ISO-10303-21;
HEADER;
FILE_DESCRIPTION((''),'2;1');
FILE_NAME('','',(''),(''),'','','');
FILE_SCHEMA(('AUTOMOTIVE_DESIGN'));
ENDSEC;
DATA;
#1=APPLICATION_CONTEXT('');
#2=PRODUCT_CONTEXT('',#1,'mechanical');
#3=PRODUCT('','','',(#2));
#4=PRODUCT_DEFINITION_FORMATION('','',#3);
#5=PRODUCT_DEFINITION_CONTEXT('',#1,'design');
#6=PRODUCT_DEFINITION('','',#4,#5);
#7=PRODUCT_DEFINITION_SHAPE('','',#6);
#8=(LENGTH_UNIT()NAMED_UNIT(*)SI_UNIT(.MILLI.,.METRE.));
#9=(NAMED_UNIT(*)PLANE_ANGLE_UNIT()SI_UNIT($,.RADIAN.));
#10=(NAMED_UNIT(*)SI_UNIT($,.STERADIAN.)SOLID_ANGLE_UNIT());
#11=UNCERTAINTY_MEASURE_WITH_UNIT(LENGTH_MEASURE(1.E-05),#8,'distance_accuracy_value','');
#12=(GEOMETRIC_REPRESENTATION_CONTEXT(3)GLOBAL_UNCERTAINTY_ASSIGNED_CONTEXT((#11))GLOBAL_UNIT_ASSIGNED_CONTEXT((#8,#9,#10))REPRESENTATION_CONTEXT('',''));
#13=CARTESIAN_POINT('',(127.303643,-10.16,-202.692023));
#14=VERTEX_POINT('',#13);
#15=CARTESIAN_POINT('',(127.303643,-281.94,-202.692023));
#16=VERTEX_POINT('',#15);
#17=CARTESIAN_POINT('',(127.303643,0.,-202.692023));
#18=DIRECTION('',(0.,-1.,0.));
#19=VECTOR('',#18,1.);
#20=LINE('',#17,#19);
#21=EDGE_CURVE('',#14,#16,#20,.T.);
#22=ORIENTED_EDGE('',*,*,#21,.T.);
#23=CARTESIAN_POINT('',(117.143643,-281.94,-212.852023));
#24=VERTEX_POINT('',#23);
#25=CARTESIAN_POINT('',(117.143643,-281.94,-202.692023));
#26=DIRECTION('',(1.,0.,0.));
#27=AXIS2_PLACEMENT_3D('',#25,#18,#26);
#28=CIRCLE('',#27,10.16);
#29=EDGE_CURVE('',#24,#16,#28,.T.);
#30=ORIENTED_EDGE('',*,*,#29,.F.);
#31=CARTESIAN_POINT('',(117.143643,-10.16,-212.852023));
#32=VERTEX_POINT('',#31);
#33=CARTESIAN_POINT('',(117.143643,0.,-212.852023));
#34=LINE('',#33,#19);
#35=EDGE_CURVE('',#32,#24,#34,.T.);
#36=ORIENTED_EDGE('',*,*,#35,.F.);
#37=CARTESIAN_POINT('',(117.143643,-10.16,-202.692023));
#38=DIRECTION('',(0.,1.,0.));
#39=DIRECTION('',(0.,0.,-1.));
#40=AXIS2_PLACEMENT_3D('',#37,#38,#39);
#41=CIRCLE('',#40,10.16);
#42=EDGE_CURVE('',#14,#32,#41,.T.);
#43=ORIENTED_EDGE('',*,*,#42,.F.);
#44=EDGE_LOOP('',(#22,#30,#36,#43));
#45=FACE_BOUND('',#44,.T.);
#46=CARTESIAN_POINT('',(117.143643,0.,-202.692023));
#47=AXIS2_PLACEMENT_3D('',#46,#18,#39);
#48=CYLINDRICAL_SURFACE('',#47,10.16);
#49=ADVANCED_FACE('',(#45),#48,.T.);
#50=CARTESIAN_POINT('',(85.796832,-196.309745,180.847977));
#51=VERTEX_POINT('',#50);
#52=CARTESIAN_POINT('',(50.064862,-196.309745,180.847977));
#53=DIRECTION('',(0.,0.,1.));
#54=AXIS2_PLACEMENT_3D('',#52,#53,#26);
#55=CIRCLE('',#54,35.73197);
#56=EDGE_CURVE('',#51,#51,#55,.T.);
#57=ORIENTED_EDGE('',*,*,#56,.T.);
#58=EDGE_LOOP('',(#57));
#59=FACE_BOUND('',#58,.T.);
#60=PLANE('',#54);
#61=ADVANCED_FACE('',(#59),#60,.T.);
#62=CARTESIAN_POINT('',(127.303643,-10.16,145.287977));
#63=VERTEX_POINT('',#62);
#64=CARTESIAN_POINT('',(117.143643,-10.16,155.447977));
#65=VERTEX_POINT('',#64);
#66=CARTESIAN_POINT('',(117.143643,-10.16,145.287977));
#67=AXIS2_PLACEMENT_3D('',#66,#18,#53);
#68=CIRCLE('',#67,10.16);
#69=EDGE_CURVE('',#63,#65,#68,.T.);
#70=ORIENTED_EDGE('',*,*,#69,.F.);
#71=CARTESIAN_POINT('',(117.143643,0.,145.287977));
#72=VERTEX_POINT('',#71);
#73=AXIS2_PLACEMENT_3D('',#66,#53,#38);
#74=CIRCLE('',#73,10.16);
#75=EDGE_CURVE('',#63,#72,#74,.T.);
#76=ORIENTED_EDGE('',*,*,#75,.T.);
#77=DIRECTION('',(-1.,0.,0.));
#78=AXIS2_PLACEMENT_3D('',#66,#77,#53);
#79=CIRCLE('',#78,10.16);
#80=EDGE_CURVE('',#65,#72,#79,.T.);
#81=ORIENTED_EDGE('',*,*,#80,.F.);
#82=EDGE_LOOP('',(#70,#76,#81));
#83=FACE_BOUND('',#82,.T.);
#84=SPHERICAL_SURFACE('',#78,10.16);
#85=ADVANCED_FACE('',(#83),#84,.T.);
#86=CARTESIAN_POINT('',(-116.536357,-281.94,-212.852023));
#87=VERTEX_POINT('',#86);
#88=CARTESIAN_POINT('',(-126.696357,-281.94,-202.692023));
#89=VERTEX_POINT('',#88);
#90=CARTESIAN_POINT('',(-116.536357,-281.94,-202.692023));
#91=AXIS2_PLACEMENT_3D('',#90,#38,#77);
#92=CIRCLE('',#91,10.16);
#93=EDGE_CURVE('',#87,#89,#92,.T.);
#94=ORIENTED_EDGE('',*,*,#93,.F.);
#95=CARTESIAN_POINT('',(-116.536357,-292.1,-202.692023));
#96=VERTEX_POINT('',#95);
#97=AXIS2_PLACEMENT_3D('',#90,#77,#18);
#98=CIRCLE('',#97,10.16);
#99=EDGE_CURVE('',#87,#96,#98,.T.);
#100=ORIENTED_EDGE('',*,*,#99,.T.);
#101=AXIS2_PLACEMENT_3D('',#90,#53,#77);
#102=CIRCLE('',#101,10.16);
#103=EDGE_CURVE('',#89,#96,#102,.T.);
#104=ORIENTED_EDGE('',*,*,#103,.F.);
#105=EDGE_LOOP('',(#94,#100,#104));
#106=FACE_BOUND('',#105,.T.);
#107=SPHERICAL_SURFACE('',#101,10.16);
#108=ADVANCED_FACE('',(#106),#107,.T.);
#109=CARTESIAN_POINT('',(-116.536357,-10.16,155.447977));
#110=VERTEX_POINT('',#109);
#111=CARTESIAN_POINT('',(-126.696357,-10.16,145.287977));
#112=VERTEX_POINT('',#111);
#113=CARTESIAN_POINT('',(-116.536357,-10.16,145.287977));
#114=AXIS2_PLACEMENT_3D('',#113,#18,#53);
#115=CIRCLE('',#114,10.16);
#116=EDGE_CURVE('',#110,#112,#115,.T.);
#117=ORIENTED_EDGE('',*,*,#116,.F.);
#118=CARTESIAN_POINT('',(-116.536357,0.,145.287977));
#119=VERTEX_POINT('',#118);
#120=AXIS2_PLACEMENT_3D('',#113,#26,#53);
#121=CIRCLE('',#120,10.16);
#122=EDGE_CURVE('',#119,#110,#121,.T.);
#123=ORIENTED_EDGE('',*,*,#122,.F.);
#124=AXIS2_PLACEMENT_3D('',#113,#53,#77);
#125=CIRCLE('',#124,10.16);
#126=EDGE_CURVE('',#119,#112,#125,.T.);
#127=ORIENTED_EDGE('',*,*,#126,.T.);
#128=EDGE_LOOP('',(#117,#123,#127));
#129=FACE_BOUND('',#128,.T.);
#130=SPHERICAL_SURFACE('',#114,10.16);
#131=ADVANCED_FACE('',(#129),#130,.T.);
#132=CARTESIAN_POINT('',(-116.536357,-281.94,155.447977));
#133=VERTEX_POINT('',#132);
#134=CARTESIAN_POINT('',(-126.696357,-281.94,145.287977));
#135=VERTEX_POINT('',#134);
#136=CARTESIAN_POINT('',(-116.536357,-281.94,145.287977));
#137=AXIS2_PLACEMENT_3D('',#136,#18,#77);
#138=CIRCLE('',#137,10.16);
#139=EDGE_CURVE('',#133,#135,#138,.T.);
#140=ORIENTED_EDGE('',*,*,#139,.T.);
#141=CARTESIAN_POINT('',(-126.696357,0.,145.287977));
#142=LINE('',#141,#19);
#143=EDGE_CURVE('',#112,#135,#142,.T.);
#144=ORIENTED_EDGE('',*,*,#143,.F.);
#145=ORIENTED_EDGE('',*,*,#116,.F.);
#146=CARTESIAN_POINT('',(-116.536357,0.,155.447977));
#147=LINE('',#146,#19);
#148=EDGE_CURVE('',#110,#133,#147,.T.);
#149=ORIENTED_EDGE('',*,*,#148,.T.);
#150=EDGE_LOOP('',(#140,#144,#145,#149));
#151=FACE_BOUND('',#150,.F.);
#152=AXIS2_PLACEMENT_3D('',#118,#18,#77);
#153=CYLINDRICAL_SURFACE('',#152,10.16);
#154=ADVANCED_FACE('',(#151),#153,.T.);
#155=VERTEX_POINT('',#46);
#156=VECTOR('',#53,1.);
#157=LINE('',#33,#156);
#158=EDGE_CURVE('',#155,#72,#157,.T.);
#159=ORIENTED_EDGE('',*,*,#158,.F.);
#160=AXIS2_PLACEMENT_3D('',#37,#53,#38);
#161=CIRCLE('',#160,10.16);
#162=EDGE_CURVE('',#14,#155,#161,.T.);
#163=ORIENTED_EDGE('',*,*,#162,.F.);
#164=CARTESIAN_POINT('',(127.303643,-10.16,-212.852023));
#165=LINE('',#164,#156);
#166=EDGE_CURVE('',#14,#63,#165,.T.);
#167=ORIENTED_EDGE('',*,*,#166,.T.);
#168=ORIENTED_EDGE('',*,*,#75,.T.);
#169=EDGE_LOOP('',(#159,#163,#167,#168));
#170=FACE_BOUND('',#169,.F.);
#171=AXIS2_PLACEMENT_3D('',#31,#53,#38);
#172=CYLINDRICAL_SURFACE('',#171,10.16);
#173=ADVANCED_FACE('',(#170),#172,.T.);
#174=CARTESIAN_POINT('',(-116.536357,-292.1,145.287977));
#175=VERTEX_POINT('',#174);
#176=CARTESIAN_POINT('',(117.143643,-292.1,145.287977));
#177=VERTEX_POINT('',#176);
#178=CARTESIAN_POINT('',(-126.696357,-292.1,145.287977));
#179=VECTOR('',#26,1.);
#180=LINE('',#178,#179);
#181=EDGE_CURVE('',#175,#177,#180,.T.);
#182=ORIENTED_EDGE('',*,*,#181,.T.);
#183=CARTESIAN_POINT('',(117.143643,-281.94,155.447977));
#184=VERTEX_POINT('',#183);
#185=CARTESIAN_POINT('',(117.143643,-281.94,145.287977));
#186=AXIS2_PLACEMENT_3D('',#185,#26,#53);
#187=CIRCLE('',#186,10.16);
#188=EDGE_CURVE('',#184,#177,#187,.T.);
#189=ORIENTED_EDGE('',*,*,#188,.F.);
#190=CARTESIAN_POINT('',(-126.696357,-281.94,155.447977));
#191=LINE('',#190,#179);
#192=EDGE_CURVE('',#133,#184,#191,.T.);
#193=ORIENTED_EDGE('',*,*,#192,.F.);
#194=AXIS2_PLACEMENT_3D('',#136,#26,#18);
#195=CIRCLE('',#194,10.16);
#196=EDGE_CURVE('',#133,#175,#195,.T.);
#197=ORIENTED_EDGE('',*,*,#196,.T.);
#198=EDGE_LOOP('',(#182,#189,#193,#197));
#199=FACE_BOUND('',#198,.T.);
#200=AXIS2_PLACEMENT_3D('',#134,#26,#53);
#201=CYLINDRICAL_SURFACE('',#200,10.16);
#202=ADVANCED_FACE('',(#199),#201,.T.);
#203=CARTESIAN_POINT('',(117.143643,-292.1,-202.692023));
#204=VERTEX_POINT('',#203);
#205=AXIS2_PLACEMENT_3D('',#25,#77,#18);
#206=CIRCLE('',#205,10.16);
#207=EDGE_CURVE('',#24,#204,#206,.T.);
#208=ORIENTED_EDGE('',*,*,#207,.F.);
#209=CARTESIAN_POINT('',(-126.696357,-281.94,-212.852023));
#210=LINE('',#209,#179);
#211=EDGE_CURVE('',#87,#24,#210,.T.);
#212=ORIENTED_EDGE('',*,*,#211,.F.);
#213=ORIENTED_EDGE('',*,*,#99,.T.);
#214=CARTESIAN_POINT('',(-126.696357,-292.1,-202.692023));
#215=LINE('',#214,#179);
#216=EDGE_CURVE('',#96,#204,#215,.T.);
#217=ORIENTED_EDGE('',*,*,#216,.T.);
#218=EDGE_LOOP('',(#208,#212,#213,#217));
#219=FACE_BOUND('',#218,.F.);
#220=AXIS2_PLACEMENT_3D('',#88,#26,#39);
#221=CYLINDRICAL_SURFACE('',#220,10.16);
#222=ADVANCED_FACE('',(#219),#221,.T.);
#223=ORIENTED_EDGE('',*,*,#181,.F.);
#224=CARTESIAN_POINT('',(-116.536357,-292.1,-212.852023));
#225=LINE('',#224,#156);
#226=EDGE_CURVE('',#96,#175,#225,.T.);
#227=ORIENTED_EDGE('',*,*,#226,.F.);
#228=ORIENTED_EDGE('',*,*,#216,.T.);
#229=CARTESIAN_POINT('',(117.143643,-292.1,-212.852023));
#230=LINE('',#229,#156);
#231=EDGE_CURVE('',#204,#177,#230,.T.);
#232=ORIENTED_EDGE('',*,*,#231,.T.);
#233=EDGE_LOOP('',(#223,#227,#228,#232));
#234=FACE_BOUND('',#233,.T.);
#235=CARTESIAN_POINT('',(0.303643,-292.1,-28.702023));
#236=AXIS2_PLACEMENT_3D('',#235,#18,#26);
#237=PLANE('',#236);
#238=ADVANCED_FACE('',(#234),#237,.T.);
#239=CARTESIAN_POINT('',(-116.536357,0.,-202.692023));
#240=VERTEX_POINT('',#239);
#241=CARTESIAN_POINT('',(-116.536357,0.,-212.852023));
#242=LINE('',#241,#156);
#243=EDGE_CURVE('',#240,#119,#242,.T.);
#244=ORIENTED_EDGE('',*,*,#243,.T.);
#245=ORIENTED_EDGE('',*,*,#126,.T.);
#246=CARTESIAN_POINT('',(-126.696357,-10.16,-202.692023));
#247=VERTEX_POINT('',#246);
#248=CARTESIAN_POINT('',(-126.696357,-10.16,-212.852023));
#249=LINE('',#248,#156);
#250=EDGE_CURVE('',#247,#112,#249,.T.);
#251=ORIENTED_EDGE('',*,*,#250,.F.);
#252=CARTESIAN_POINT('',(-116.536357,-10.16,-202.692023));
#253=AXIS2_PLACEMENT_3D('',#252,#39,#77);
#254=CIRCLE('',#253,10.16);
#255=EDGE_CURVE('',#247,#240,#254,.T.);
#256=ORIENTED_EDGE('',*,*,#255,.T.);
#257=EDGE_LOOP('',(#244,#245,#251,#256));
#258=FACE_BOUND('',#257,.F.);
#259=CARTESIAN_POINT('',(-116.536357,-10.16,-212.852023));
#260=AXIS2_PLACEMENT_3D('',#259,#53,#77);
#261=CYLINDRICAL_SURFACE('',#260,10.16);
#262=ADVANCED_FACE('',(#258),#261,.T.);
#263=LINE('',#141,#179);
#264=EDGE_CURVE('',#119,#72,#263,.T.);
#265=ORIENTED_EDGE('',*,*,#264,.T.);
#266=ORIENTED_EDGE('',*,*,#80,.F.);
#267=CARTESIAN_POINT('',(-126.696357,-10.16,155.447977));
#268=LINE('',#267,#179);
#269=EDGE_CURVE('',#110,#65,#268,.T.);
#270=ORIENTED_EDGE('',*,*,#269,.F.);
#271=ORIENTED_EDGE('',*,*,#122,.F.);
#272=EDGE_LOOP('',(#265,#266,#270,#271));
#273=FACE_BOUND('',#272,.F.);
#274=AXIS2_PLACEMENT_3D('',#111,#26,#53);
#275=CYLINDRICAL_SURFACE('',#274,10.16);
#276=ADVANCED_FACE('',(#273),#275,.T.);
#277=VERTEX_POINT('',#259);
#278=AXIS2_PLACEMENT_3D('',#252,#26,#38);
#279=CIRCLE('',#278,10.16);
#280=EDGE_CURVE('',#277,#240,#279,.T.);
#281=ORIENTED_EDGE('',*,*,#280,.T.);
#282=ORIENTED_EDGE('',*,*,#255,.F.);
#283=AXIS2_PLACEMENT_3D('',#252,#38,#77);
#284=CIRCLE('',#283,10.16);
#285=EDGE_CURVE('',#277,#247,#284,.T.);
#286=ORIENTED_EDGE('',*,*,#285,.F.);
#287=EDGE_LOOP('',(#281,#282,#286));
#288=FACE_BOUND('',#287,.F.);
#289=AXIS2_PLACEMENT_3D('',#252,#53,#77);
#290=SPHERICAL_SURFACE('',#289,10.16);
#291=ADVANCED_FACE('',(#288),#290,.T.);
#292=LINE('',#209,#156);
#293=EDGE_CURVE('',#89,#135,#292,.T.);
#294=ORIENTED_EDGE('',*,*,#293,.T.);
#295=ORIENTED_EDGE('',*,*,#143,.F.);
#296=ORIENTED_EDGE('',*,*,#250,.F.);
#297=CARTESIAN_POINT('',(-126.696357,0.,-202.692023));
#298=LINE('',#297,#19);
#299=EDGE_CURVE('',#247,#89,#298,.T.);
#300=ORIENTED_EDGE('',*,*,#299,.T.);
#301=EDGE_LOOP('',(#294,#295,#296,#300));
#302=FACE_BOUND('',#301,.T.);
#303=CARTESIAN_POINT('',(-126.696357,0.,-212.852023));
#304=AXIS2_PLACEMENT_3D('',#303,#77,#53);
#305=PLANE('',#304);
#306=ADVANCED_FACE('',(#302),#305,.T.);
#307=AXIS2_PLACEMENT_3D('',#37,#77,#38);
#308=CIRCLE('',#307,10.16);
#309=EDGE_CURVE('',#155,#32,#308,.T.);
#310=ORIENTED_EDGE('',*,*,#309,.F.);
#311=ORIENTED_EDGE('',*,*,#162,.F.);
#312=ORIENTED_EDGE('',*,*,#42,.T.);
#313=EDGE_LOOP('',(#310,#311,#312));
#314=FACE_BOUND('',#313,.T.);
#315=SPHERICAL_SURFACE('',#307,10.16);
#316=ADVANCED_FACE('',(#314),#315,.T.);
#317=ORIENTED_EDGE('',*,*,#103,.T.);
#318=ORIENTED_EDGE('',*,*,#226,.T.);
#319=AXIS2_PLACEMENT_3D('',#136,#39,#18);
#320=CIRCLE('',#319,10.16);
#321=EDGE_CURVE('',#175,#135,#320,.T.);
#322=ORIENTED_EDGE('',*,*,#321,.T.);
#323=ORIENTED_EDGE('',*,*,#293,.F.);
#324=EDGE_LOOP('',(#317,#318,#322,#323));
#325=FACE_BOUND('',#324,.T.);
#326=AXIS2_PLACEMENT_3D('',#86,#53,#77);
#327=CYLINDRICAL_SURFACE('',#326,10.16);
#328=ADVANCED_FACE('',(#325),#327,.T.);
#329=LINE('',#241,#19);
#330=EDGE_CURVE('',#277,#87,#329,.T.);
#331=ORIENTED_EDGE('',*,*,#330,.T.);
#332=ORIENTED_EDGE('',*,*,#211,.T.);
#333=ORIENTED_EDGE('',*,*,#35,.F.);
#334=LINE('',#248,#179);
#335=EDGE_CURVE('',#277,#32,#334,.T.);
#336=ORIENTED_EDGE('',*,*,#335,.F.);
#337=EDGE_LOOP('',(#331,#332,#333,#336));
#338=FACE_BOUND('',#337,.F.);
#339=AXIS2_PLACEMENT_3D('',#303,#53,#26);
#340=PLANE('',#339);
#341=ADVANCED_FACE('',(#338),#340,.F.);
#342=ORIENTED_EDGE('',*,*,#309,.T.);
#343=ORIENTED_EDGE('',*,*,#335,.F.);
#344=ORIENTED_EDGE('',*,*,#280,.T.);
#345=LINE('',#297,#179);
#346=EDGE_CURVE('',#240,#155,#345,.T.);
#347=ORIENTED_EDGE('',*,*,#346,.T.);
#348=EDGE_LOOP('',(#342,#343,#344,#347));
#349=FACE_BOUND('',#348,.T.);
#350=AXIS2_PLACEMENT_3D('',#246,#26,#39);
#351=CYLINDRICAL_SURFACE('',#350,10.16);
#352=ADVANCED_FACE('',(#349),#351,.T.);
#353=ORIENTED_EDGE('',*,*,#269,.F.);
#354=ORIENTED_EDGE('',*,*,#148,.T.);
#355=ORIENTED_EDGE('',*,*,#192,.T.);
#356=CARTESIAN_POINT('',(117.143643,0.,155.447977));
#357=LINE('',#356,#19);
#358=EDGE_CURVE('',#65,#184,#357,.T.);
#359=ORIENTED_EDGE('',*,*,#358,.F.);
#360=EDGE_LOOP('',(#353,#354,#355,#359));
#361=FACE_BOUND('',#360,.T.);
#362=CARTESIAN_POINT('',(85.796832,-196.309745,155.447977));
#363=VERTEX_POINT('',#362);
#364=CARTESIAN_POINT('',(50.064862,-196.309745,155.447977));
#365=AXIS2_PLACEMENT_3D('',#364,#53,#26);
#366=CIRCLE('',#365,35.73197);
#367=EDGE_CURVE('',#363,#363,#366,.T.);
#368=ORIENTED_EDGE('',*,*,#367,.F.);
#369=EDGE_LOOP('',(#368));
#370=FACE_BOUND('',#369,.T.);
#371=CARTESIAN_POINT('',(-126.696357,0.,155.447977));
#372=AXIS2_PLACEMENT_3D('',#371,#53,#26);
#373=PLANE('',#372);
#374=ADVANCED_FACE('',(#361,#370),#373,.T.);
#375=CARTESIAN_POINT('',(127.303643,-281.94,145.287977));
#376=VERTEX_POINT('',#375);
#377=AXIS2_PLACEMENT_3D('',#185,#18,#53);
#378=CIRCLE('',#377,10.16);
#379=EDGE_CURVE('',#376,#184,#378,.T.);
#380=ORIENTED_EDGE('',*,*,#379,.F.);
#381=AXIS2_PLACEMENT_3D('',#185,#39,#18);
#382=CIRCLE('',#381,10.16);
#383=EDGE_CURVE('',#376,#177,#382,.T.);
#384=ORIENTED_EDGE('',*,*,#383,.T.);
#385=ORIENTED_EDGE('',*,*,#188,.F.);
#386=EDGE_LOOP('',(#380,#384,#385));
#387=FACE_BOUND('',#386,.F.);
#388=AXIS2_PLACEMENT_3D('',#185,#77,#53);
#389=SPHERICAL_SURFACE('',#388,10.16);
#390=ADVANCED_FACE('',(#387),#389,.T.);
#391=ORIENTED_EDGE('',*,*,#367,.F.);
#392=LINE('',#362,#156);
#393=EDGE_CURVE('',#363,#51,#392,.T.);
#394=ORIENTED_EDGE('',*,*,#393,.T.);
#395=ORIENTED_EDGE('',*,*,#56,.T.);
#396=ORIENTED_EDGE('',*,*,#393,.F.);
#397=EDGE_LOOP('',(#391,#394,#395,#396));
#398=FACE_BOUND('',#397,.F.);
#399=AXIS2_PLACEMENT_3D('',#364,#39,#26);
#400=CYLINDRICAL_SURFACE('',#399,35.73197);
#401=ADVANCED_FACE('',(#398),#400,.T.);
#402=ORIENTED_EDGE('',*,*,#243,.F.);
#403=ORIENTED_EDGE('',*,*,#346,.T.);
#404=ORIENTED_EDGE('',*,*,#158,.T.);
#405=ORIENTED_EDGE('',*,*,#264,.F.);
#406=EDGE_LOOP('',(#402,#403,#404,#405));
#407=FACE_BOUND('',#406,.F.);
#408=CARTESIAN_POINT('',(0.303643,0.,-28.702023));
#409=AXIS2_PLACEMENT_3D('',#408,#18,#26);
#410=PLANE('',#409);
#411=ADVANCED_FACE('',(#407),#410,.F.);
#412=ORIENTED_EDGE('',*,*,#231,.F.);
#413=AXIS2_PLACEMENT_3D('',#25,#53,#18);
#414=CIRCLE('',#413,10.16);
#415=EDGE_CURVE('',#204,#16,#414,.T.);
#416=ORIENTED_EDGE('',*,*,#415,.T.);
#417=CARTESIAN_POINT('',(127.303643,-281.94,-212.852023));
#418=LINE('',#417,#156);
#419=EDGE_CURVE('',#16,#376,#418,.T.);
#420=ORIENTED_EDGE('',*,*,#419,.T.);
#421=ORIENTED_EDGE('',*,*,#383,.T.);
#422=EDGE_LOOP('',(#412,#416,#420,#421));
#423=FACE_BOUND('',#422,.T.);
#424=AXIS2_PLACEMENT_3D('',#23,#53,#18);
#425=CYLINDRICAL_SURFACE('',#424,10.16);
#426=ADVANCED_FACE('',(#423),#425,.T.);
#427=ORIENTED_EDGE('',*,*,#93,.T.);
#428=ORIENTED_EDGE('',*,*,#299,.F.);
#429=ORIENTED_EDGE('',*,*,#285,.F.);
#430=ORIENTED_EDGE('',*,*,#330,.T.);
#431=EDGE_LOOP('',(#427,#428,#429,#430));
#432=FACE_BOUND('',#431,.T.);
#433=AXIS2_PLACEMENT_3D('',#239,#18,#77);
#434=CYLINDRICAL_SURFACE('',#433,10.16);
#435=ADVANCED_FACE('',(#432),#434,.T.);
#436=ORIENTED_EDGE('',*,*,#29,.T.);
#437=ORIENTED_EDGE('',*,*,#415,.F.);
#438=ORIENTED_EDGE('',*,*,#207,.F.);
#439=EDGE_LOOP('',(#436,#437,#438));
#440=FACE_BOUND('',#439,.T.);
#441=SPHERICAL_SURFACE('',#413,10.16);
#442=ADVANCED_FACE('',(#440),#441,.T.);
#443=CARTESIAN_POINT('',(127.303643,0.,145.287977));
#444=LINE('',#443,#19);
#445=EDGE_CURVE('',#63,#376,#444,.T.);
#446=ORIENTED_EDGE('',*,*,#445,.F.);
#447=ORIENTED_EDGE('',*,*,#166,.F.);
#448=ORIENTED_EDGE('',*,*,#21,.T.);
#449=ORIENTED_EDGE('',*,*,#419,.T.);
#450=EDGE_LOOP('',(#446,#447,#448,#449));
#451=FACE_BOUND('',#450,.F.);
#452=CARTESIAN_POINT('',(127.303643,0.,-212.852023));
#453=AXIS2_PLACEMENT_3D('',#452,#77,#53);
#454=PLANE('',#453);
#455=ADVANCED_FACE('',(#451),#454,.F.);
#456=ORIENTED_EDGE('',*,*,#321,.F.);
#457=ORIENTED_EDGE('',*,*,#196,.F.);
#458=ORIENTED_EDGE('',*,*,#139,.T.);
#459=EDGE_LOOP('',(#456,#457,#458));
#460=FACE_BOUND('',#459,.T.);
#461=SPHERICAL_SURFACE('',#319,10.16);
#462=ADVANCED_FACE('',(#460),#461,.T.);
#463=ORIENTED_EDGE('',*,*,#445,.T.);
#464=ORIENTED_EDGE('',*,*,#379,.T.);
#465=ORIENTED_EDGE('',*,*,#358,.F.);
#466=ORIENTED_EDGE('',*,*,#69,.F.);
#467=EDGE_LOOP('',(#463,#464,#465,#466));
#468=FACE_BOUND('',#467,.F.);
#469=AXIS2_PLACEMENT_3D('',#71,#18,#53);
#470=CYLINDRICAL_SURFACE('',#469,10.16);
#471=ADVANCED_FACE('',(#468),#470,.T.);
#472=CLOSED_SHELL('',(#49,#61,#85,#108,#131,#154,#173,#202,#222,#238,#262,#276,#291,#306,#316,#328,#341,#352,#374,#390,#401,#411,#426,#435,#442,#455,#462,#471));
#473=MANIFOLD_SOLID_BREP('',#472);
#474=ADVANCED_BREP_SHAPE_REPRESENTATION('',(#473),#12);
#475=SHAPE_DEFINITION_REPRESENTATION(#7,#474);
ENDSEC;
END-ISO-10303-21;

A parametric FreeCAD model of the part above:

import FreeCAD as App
import Part
import Sketcher

V = App.Vector
Q = App.Units.Quantity


def edges_at(feature, points):
    """Names of the edges that pass closest to the given points."""
    edges = feature.Shape.Edges
    near = lambda p: min(range(len(edges)), key=lambda i: edges[i].distToShape(Part.Vertex(*p))[0])
    return sorted({f"Edge{near(p) + 1}" for p in points})


def add_polygon(sketch, points):
    """Adds a closed chain of lines whose ends are joined by coincident constraints."""
    first, n = sketch.GeometryCount, len(points)
    for a, b in zip(points, points[1:] + points[:1]):
        sketch.addGeometry(Part.LineSegment(App.Vector(*a, 0), App.Vector(*b, 0)), False)
    for i in range(n):
        sketch.addConstraint(Sketcher.Constraint("Coincident", first + i, 2, first + (i + 1) % n, 1))

doc = App.newDocument("Part")
body = doc.addObject("PartDesign::Body", "Body")

# Sketch on XZ plane
sketch1 = doc.addObject("Sketcher::SketchObject", "Sketch")
body.addObject(sketch1)
sketch1.AttachmentSupport = (doc.XZ_Plane, [""])
sketch1.MapMode = "FlatFace"
add_polygon(sketch1, [(-126.696357, 155.447977), (-126.696357, -212.852023), (127.303643, -212.852023), (127.303643, 155.447977)])  # lines 0-3
sketch1.addConstraint(Sketcher.Constraint("Vertical", 0))
sketch1.addConstraint(Sketcher.Constraint("Horizontal", 1))
sketch1.addConstraint(Sketcher.Constraint("Vertical", 2))
sketch1.addConstraint(Sketcher.Constraint("Horizontal", 3))
sketch1.addConstraint(Sketcher.Constraint("DistanceX", 1, 1, 1, 2, Q("10 in")))
sketch1.addConstraint(Sketcher.Constraint("DistanceY", 0, 2, 0, 1, Q("14.5 in")))
sketch1.addConstraint(Sketcher.Constraint("DistanceX", 0, 2, -1, 1, Q("126.696357 mm")))
sketch1.addConstraint(Sketcher.Constraint("DistanceY", 0, 2, -1, 1, Q("212.852023 mm")))
pad1 = doc.addObject("PartDesign::Pad", "Pad")
body.addObject(pad1)
pad1.Profile = sketch1
pad1.Length = Q("11.5 in")

# Sketch on XY plane
sketch2 = doc.addObject("Sketcher::SketchObject", "Sketch001")
body.addObject(sketch2)
sketch2.AttachmentSupport = (doc.XY_Plane, [""])
sketch2.MapMode = "FlatFace"
sketch2.AttachmentOffset = App.Placement(V(0, 0, 155.447977), App.Rotation())
sketch2.addGeometry(Part.Circle(V(50.064862, -196.309745, 0), V(0, 0, 1), 35.73197), False)
sketch2.addConstraint(Sketcher.Constraint("Diameter", 0, Q("71.46394 mm")))
sketch2.addConstraint(Sketcher.Constraint("DistanceX", -1, 1, 0, 3, Q("50.064862 mm")))
sketch2.addConstraint(Sketcher.Constraint("DistanceY", 0, 3, -1, 1, Q("196.309745 mm")))
pad2 = doc.addObject("PartDesign::Pad", "Pad001")
body.addObject(pad2)
pad2.Profile = sketch2
pad2.Length = Q("1 in")
doc.recompute()

fillet = doc.addObject("PartDesign::Fillet", "Fillet")
body.addObject(fillet)
fillet.Base = (pad2, edges_at(pad2, [
    (-126.696, -292.1, -28.702),
    (0.304, -292.1, 155.448),
    (-126.696, -146.05, 155.448),
    (0.304, 0, 155.448),
    (127.304, -146.05, 155.448),
    (-126.696, 0, -28.702),
    (-126.696, -146.05, -212.852),
    (0.304, 0, -212.852),
    (127.304, 0, -28.702),
    (127.304, -292.1, -28.702),
    (0.304, -292.1, -212.852),
    (127.304, -146.05, -212.852),
]))
fillet.Radius = Q("0.4 in")

doc.recompute()
